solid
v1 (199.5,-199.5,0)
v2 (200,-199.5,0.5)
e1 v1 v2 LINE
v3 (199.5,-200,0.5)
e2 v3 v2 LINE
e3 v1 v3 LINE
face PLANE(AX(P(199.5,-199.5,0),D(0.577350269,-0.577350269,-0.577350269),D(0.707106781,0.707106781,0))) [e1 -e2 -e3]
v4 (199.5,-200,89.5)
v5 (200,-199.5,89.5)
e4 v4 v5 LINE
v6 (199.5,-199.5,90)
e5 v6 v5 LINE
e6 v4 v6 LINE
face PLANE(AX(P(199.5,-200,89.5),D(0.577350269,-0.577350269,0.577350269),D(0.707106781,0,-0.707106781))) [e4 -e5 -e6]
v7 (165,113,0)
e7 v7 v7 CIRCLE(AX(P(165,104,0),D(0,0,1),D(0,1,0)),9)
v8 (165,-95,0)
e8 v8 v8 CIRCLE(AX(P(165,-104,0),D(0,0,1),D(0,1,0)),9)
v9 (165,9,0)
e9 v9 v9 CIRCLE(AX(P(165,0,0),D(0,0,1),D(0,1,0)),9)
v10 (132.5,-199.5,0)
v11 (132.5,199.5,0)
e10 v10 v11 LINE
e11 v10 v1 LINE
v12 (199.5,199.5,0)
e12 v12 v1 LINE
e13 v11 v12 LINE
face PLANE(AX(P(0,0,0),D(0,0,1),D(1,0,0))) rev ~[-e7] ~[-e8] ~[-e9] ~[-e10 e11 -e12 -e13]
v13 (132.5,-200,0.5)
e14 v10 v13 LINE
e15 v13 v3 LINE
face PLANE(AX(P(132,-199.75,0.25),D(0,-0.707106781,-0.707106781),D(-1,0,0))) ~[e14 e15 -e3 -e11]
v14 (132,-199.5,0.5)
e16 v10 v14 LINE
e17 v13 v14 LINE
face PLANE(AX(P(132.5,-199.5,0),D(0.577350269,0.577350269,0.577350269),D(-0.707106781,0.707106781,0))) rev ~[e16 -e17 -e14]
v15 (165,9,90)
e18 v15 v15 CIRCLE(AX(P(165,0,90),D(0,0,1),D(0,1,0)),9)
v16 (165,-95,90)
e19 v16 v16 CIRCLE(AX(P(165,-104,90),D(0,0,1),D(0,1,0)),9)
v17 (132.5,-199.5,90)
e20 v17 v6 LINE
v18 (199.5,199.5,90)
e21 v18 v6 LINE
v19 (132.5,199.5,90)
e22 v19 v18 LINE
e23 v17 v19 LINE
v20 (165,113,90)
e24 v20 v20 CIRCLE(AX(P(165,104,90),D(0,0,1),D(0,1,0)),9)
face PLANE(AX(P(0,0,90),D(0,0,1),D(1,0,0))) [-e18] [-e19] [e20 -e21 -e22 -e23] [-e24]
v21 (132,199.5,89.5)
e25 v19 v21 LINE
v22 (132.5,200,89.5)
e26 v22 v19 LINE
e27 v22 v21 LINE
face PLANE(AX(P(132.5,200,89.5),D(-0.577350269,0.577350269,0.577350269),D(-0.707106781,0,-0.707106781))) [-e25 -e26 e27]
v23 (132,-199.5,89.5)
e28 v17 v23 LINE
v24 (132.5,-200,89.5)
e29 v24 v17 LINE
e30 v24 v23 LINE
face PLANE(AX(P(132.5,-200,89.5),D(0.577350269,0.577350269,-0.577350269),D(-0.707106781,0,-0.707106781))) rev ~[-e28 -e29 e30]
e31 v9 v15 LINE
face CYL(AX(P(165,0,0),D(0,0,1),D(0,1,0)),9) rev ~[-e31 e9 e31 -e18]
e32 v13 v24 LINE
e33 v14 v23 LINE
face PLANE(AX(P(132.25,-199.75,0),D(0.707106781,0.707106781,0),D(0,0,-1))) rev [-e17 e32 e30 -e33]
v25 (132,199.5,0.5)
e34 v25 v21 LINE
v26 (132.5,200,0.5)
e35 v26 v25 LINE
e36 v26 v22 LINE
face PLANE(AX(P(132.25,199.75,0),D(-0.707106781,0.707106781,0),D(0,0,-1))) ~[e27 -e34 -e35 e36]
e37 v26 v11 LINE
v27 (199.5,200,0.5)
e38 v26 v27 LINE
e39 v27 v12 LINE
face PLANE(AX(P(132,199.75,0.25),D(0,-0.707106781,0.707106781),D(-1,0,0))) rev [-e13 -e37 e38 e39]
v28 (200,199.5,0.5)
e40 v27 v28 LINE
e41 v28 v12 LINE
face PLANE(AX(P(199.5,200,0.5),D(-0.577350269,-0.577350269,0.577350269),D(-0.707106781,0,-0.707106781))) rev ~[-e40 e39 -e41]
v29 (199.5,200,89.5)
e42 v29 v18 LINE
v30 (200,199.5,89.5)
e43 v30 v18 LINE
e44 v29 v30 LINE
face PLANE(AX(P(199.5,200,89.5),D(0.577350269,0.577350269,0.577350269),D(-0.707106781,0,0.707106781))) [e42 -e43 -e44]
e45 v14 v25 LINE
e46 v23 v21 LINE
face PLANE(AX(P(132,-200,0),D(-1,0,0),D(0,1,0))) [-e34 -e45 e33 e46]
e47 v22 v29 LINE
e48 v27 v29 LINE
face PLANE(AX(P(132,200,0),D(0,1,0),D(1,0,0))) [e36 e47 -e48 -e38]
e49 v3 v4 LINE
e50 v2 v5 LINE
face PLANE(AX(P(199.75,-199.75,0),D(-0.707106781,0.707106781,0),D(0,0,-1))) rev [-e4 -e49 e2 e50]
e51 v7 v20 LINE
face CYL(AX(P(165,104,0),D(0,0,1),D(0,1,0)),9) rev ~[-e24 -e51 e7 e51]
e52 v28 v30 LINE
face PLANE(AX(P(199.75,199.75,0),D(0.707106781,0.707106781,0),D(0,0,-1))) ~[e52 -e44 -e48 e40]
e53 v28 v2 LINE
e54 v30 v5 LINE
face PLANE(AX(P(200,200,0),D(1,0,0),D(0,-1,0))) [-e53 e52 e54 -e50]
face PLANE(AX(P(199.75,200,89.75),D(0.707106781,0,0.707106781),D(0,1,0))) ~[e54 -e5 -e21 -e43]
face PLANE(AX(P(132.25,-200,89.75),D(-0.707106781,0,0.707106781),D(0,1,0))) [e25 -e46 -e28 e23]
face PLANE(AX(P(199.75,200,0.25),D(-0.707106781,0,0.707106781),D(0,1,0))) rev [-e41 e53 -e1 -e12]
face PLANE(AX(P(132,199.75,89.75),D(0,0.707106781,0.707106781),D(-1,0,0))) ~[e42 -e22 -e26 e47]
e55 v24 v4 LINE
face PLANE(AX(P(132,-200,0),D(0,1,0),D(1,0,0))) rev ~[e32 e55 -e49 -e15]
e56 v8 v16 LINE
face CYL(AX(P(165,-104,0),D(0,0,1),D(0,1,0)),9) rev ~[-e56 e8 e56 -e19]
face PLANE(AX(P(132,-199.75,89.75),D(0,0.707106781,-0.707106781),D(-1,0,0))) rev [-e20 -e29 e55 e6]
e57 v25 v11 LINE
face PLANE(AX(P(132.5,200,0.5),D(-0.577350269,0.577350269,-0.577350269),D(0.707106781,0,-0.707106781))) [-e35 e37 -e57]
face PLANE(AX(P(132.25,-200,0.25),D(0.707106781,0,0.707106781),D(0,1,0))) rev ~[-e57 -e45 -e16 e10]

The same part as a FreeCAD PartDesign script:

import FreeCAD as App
import Part
import Sketcher

V = App.Vector
Q = App.Units.Quantity


def edges_at(feature, points):
    """Names of the edges that pass closest to the given points."""
    edges = feature.Shape.Edges
    near = lambda p: min(range(len(edges)), key=lambda i: edges[i].distToShape(Part.Vertex(*p))[0])
    return sorted({f"Edge{near(p) + 1}" for p in points})

doc = App.newDocument("Part")
params = doc.addObject("Spreadsheet::Sheet", "Params")
for row, (alias, value) in enumerate([
    ("sketch1_width", "68 mm"),
    ("sketch1_height", "400 mm"),
    ("pad1_length", "90 mm"),
    ("sketch2_diameter", "18 mm"),
    ("hole_diameter", "18 mm"),
    ("hole_depth", "90 mm"),
    ("linearpattern_pitch", "104 mm"),
    ("chamfer_size", "0.5 mm"),
], start=1):
    params.set(f"A{row}", alias)
    params.set(f"B{row}", "=" + value)
    params.setAlias(f"B{row}", alias)

body = doc.addObject("PartDesign::Body", "Body")

# Sketch on XY plane
sketch1 = doc.addObject("Sketcher::SketchObject", "Sketch")
body.addObject(sketch1)
sketch1.AttachmentSupport = (doc.XY_Plane, [""])
sketch1.MapMode = "FlatFace"
sketch1.addGeometry([
    Part.LineSegment(V(200, -200, 0), V(200, 200, 0)),
    Part.LineSegment(V(200, 200, 0), V(132, 200, 0)),
    Part.LineSegment(V(132, 200, 0), V(132, -200, 0)),
    Part.LineSegment(V(132, -200, 0), V(200, -200, 0)),
], False)
sketch1.addConstraint([
    Sketcher.Constraint("Coincident", 0, 2, 1, 1),
    Sketcher.Constraint("Coincident", 1, 2, 2, 1),
    Sketcher.Constraint("Coincident", 2, 2, 3, 1),
    Sketcher.Constraint("Coincident", 3, 2, 0, 1),
    Sketcher.Constraint("Vertical", 0),
    Sketcher.Constraint("Horizontal", 1),
    Sketcher.Constraint("Vertical", 2),
    Sketcher.Constraint("Horizontal", 3),
    Sketcher.Constraint("DistanceX", 1, 2, 1, 1, Q("68 mm")),
    Sketcher.Constraint("DistanceY", 0, 1, 0, 2, Q("400 mm")),
    Sketcher.Constraint("DistanceX", -1, 1, 0, 2, Q("200 mm")),
    Sketcher.Constraint("DistanceY", -1, 1, 0, 2, Q("200 mm")),
])
sketch1.setExpression("Constraints[8]", "Params.sketch1_width")
sketch1.setExpression("Constraints[9]", "Params.sketch1_height")
pad1 = doc.addObject("PartDesign::Pad", "Pad")
body.addObject(pad1)
pad1.Profile = sketch1
pad1.setExpression("Length", "Params.pad1_length")

# Sketch on XY plane
sketch2 = doc.addObject("Sketcher::SketchObject", "Sketch001")
body.addObject(sketch2)
sketch2.AttachmentSupport = (doc.XY_Plane, [""])
sketch2.MapMode = "FlatFace"
sketch2.addGeometry(Part.Circle(V(165, 104, 0), V(0, 0, 1), 9), False)
sketch2.addConstraint([
    Sketcher.Constraint("Diameter", 0, Q("18 mm")),
    Sketcher.Constraint("DistanceX", -1, 1, 0, 3, Q("165 mm")),
    Sketcher.Constraint("DistanceY", -1, 1, 0, 3, Q("104 mm")),
])
sketch2.setExpression("Constraints[0]", "Params.sketch2_diameter")
doc.recompute()
hole = doc.addObject("PartDesign::Hole", "Hole")
body.addObject(hole)
hole.Profile = sketch2
hole.ThreadType = "None"
hole.setExpression("Diameter", "Params.hole_diameter")
hole.DepthType = "Dimension"
hole.setExpression("Depth", "Params.hole_depth")
hole.DrillPoint = "Flat"
hole.Reversed = True
doc.recompute()

linearpattern = doc.addObject("PartDesign::LinearPattern", "LinearPattern")
body.addObject(linearpattern)
linearpattern.Originals = [hole]
linearpattern.Direction = (doc.Y_Axis, [""])
linearpattern.Mode = "offset"
linearpattern.setExpression("Offset", "Params.linearpattern_pitch")
linearpattern.Occurrences = 3
linearpattern.Reversed = True
body.Tip = linearpattern
doc.recompute()

chamfer = doc.addObject("PartDesign::Chamfer", "Chamfer")
body.addObject(chamfer)
chamfer.Base = (linearpattern, edges_at(linearpattern, [
    (132, 0, 90),
    (200, 0, 90),
    (166, -200, 90),
    (132, -200, 45),
    (200, -200, 45),
    (166, -200, 0),
    (200, 0, 0),
    (132, 0, 0),
    (200, 200, 45),
    (166, 200, 90),
    (132, 200, 45),
    (166, 200, 0),
]))
chamfer.setExpression("Size", "Params.chamfer_size")

doc.recompute()
